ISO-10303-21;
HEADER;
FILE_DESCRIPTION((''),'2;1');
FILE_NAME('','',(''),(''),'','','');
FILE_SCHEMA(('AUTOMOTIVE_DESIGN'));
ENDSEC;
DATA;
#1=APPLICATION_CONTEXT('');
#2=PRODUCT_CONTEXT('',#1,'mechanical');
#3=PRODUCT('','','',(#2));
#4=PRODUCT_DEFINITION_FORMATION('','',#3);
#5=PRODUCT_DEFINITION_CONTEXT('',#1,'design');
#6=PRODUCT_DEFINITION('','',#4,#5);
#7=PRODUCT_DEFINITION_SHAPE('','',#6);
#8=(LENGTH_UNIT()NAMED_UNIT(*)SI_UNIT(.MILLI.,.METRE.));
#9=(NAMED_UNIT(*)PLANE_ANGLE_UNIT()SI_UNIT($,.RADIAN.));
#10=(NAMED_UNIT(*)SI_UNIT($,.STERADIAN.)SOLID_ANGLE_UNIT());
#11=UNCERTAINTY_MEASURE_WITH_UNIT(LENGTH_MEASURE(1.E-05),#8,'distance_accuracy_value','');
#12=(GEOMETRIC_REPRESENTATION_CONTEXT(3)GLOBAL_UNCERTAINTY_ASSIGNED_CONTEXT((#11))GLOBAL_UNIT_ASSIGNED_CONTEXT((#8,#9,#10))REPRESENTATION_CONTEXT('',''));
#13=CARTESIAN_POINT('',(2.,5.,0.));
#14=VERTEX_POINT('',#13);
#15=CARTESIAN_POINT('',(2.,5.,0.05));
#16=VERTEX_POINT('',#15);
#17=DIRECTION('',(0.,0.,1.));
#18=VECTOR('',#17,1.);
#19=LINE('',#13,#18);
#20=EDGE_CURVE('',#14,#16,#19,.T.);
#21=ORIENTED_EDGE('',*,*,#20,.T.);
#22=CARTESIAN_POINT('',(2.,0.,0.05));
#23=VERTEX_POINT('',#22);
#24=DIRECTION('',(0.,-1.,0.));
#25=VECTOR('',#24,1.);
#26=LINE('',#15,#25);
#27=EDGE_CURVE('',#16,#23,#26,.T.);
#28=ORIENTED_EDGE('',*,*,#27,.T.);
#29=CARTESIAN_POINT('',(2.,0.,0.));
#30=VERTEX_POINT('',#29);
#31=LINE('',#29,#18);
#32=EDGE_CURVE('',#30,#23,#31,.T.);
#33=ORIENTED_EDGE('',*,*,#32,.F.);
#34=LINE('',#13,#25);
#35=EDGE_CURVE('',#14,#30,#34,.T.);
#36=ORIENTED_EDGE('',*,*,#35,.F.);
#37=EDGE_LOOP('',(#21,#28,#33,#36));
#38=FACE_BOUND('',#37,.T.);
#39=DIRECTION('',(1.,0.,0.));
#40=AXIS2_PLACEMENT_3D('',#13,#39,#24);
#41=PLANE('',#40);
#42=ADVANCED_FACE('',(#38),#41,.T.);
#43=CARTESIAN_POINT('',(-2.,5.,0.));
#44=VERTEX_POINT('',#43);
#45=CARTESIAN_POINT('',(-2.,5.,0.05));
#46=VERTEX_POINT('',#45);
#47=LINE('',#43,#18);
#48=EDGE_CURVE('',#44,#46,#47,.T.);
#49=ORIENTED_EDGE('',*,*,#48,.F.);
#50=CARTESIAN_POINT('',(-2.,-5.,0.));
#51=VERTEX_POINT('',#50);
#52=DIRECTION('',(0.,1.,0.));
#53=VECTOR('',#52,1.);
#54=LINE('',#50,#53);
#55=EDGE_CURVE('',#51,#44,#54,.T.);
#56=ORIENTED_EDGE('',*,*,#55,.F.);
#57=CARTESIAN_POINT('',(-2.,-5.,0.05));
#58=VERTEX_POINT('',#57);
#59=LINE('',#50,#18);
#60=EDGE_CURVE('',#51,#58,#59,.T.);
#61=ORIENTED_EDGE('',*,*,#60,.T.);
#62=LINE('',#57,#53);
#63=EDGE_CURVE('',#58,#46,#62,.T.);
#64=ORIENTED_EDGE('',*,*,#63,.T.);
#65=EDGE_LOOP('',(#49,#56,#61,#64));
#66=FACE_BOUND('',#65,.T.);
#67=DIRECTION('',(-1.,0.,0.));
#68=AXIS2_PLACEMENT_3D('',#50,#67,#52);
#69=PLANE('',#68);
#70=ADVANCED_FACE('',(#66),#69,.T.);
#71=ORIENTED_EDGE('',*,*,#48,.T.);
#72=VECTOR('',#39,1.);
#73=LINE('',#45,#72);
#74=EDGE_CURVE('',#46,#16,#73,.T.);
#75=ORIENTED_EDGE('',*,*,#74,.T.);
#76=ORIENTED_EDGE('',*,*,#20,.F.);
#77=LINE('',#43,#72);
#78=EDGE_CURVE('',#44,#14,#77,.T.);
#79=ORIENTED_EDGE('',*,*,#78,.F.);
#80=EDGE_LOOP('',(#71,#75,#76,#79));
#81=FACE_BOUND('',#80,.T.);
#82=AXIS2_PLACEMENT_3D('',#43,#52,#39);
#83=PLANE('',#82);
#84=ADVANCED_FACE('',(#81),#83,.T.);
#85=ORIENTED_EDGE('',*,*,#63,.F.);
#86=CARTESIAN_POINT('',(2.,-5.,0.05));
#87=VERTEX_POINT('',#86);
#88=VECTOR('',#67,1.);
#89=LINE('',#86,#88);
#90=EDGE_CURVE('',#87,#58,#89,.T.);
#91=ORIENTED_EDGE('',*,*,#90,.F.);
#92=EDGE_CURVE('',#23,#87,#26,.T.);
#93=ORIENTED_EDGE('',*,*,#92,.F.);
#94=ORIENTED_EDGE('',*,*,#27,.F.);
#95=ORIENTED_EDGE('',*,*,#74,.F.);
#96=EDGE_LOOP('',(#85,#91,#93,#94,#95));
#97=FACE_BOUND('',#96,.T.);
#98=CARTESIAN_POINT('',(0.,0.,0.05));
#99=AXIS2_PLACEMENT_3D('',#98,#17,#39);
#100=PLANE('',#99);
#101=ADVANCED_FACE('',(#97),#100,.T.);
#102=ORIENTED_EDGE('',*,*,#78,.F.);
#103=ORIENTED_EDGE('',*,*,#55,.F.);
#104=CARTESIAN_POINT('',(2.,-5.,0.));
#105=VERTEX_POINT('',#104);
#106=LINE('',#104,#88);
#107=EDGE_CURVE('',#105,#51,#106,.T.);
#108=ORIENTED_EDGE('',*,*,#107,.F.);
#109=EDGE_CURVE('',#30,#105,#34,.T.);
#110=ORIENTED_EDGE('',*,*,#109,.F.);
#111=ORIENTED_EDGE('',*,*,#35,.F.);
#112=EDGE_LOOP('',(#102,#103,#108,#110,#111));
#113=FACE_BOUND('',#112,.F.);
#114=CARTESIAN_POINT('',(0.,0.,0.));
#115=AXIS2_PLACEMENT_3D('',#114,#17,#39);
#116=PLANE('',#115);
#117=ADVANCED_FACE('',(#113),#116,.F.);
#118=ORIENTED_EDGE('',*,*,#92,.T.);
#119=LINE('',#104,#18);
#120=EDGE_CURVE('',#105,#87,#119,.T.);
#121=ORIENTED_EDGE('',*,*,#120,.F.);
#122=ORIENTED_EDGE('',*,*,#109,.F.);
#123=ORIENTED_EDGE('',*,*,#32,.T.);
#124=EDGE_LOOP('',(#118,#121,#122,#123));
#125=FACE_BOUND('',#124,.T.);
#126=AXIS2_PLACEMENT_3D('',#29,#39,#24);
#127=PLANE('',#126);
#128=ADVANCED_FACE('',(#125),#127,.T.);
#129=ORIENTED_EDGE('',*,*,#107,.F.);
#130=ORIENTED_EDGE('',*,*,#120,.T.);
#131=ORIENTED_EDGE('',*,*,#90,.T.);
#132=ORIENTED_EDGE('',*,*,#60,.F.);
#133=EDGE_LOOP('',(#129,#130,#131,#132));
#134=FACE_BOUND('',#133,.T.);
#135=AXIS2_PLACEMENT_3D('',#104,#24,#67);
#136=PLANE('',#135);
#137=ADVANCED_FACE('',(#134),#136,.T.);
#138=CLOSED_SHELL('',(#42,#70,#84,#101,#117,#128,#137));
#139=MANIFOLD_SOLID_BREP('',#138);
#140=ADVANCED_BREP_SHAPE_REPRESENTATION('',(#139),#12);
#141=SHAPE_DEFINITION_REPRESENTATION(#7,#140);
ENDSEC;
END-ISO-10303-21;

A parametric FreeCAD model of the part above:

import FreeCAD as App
import Part
import Sketcher
from FreeCAD import Vector
Q = App.Units.Quantity


def add_polygon(sketch, points):
    """Adds a closed chain of lines whose ends are joined by coincident constraints."""
    first, n = sketch.GeometryCount, len(points)
    for a, b in zip(points, points[1:] + points[:1]):
        sketch.addGeometry(Part.LineSegment(App.Vector(*a, 0), App.Vector(*b, 0)), False)
    for i in range(n):
        sketch.addConstraint(Sketcher.Constraint("Coincident", first + i, 2, first + (i + 1) % n, 1))

doc = App.newDocument("Part")
body = doc.addObject("PartDesign::Body", "Body")

sketch1 = body.newObject("Sketcher::SketchObject", "Sketch")
sketch1.AttachmentSupport = (doc.getObject("XY_Plane"), [""])
sketch1.MapMode = "FlatFace"
add_polygon(sketch1, [(2, 5), (-2, 5), (-2, -5), (2, -5)])
sketch1.addConstraint([
    Sketcher.Constraint("Horizontal", 0),
    Sketcher.Constraint("Vertical", 1),
    Sketcher.Constraint("Horizontal", 2),
    Sketcher.Constraint("Vertical", 3),
    Sketcher.Constraint("Symmetric", 0, 2, 2, 2, -1, 1),
    Sketcher.Constraint("DistanceX", 0, 2, 0, 1, Q("4 mm")),
    Sketcher.Constraint("DistanceY", 1, 2, 1, 1, Q("10 mm")),
])
pad1 = body.newObject("PartDesign::Pad", "Pad")
pad1.Profile = sketch1
pad1.Length = 0.05

doc.recompute()
